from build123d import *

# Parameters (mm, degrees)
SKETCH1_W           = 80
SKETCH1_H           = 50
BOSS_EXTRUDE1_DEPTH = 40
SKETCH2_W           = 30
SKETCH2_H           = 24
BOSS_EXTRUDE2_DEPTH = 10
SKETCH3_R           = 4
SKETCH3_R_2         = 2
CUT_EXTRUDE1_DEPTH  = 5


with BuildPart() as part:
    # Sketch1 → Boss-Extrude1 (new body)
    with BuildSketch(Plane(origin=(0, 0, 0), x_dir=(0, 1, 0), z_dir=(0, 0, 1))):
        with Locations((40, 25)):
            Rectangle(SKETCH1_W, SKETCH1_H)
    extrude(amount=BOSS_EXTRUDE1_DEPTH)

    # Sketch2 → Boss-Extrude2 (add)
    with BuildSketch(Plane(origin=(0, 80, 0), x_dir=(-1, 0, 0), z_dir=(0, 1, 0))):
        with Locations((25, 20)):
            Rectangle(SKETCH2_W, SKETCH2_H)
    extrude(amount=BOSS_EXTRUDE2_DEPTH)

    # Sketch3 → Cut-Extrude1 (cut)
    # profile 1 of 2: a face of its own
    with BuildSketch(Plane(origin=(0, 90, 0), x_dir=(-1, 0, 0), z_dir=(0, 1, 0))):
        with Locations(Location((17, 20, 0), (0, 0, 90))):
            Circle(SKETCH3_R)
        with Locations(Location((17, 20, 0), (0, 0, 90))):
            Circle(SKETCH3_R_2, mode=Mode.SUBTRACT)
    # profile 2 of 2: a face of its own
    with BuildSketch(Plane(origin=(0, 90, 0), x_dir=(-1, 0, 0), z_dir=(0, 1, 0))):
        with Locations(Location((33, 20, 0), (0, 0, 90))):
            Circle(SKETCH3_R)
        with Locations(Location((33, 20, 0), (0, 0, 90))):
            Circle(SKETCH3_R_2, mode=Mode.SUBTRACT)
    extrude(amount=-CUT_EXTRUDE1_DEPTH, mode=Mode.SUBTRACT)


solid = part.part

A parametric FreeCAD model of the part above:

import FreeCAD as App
import Part
import Sketcher


def add_polygon(sketch, points):
    """Adds a closed chain of lines whose ends are joined by coincident constraints."""
    first, n = sketch.GeometryCount, len(points)
    for a, b in zip(points, points[1:] + points[:1]):
        sketch.addGeometry(Part.LineSegment(App.Vector(*a, 0), App.Vector(*b, 0)), False)
    for i in range(n):
        sketch.addConstraint(Sketcher.Constraint("Coincident", first + i, 2, first + (i + 1) % n, 1))

doc = App.newDocument("Part")
body = doc.addObject("PartDesign::Body", "Body")

sketch1 = body.newObject("Sketcher::SketchObject", "Sketch")
sketch1.AttachmentSupport = (doc.getObject("XY_Plane"), [""])
sketch1.MapMode = "FlatFace"
add_polygon(sketch1, [(-50, 0), (0, 0), (0, 80), (-50, 80)])
sketch1.addConstraint(Sketcher.Constraint("Horizontal", 0))
sketch1.addConstraint(Sketcher.Constraint("Vertical", 1))
sketch1.addConstraint(Sketcher.Constraint("Horizontal", 2))
sketch1.addConstraint(Sketcher.Constraint("Vertical", 3))
sketch1.addConstraint(Sketcher.Constraint("Coincident", 0, 2, -1, 1))
sketch1.addConstraint(Sketcher.Constraint("DistanceX", 0, 1, 0, 2, 50.0))
sketch1.addConstraint(Sketcher.Constraint("DistanceY", 1, 1, 1, 2, 80.0))
pad1 = body.newObject("PartDesign::Pad", "Pad")
pad1.Profile = sketch1
pad1.Length = 40

sketch2 = body.newObject("Sketcher::SketchObject", "Sketch001")
sketch2.AttachmentSupport = (doc.getObject("XZ_Plane"), [""])
sketch2.MapMode = "FlatFace"
sketch2.AttachmentOffset = App.Placement(App.Vector(0, 0, -80), App.Rotation())
add_polygon(sketch2, [(-10, 32), (-10, 8), (-40, 8), (-40, 32)])
sketch2.addConstraint(Sketcher.Constraint("Vertical", 0))
sketch2.addConstraint(Sketcher.Constraint("Horizontal", 1))
sketch2.addConstraint(Sketcher.Constraint("Vertical", 2))
sketch2.addConstraint(Sketcher.Constraint("Horizontal", 3))
sketch2.addConstraint(Sketcher.Constraint("DistanceX", 1, 2, 1, 1, 30.0))
sketch2.addConstraint(Sketcher.Constraint("DistanceY", 0, 2, 0, 1, 24.0))
sketch2.addConstraint(Sketcher.Constraint("DistanceX", 0, 2, -1, 1, 10.0))
sketch2.addConstraint(Sketcher.Constraint("DistanceY", -1, 1, 0, 2, 8.0))
pad2 = body.newObject("PartDesign::Pad", "Pad001")
pad2.Profile = sketch2
pad2.Length = 10
pad2.Reversed = True

sketch3 = body.newObject("Sketcher::SketchObject", "Sketch002")
sketch3.AttachmentSupport = (doc.getObject("XZ_Plane"), [""])
sketch3.MapMode = "FlatFace"
sketch3.AttachmentOffset = App.Placement(App.Vector(0, 0, -90), App.Rotation())
sketch3.addGeometry(Part.Circle(App.Vector(-17, 20, 0), App.Vector(0, 0, 1), 4), False)
sketch3.addGeometry(Part.Circle(App.Vector(-17, 20, 0), App.Vector(0, 0, 1), 2), False)
sketch3.addGeometry(Part.Circle(App.Vector(-33, 20, 0), App.Vector(0, 0, 1), 4), False)
sketch3.addGeometry(Part.Circle(App.Vector(-33, 20, 0), App.Vector(0, 0, 1), 2), False)
sketch3.addConstraint(Sketcher.Constraint("Coincident", 1, 3, 0, 3))
sketch3.addConstraint(Sketcher.Constraint("Coincident", 3, 3, 2, 3))
sketch3.addConstraint(Sketcher.Constraint("Equal", 0, 2))
sketch3.addConstraint(Sketcher.Constraint("Equal", 1, 3))
sketch3.addConstraint(Sketcher.Constraint("Horizontal", 1, 3, 2, 3))
sketch3.addConstraint(Sketcher.Constraint("Diameter", 0, 8.0))
sketch3.addConstraint(Sketcher.Constraint("Diameter", 1, 4.0))
sketch3.addConstraint(Sketcher.Constraint("DistanceX", 0, 3, -1, 1, 17.0))
sketch3.addConstraint(Sketcher.Constraint("DistanceY", -1, 1, 0, 3, 20.0))
sketch3.addConstraint(Sketcher.Constraint("DistanceX", 2, 3, -1, 1, 33.0))
pocket1 = body.newObject("PartDesign::Pocket", "Pocket")
pocket1.Profile = sketch3
pocket1.Length = 5
pocket1.Reversed = True

doc.recompute()
